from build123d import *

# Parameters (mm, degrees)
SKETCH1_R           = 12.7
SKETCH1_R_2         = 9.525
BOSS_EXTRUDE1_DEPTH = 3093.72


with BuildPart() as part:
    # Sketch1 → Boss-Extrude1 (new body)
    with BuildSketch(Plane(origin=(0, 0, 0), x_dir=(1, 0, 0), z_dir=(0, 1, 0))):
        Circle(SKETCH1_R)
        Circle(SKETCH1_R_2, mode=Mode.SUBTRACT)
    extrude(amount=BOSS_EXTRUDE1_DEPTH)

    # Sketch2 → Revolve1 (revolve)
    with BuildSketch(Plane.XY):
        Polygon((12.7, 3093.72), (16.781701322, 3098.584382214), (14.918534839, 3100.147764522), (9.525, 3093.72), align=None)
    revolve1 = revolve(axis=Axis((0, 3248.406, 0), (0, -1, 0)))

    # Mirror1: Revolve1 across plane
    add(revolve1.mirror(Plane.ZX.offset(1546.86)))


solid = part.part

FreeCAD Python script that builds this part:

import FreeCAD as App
import Part
import Sketcher
from FreeCAD import Vector
Q = App.Units.Quantity


def add_polygon(sketch, points):
    """Adds a closed chain of lines whose ends are joined by coincident constraints."""
    first, n = sketch.GeometryCount, len(points)
    for a, b in zip(points, points[1:] + points[:1]):
        sketch.addGeometry(Part.LineSegment(App.Vector(*a, 0), App.Vector(*b, 0)), False)
    for i in range(n):
        sketch.addConstraint(Sketcher.Constraint("Coincident", first + i, 2, first + (i + 1) % n, 1))

doc = App.newDocument("Part")
body = doc.addObject("PartDesign::Body", "Body")

sketch1 = body.newObject("Sketcher::SketchObject", "Sketch")
sketch1.AttachmentSupport = (doc.getObject("XZ_Plane"), [""])
sketch1.MapMode = "FlatFace"
sketch1.addGeometry([
    Part.Circle(Vector(0, 0, 0), Vector(0, 0, 1), 13),
    Part.Circle(Vector(0, 0, 0), Vector(0, 0, 1), 10),
], False)
sketch1.addConstraint([
    Sketcher.Constraint("Coincident", 0, 3, -1, 1),
    Sketcher.Constraint("Coincident", 1, 3, -1, 1),
    Sketcher.Constraint("Diameter", 0, Q("1 in")),
    Sketcher.Constraint("Diameter", 1, Q("0.75 in")),
])
pad1 = body.newObject("PartDesign::Pad", "Pad")
pad1.Profile = sketch1
pad1.Length = Q("121.8 in")
pad1.Reversed = True

sketch2 = body.newObject("Sketcher::SketchObject", "Sketch001")
sketch2.AttachmentSupport = (doc.getObject("XY_Plane"), [""])
sketch2.MapMode = "FlatFace"
add_polygon(sketch2, [(12.7, 3093.7), (16.8, 3098.6), (14.9, 3100.1), (9.5, 3093.7)])
sketch2.addConstraint([
    Sketcher.Constraint("Horizontal", 3),
    Sketcher.Constraint("Perpendicular", 0, 1),
    Sketcher.Constraint("Perpendicular", 1, 2),
    Sketcher.Constraint("Angle", 0, Q("50 deg")),
    Sketcher.Constraint("DistanceY", -1, 1, 2, 2, Q("121.8 in")),
    Sketcher.Constraint("DistanceX", -1, 1, 3, 2, Q("0.5 in")),
    Sketcher.Constraint("Distance", 0, Q("0.25 in")),
    Sketcher.Constraint("DistanceX", 3, 1, 3, 2, Q("0.125 in")),
])
revolution = body.newObject("PartDesign::Revolution", "Revolution")
revolution.Profile = sketch2
revolution.ReferenceAxis = (sketch2, ["V_Axis"])
revolution.Angle = 360
doc.recompute()

datumplane = body.newObject("PartDesign::Plane", "DatumPlane")
datumplane.AttachmentSupport = (doc.getObject("XZ_Plane"), [""])
datumplane.MapMode = "FlatFace"
datumplane.AttachmentOffset = App.Placement(Vector(0, 0, -60.9 * 25.4), App.Rotation())
mirrored = body.newObject("PartDesign::Mirrored", "Mirrored")
mirrored.Originals = [revolution]
mirrored.MirrorPlane = (datumplane, [""])
body.Tip = mirrored

doc.recompute()
